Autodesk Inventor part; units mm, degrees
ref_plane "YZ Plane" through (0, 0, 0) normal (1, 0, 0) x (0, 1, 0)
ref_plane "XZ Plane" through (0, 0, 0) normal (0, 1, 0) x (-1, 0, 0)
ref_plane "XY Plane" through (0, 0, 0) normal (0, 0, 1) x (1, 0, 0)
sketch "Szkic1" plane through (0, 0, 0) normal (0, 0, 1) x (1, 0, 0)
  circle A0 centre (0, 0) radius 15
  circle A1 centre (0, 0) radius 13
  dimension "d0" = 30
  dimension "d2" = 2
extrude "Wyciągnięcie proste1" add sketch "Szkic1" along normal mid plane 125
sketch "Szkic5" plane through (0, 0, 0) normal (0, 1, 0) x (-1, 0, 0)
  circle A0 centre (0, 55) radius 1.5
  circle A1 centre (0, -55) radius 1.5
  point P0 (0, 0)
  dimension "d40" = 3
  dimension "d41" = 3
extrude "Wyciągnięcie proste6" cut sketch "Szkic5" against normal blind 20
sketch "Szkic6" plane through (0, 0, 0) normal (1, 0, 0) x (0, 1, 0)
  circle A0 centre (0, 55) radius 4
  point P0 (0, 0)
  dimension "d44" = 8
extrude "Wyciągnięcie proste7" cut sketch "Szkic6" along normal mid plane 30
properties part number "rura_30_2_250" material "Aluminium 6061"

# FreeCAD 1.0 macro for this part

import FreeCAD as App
import Part
import Sketcher

doc = App.newDocument("Part")
body = doc.addObject("PartDesign::Body", "Body")

# Sketch on XY plane
sketch1 = doc.addObject("Sketcher::SketchObject", "Sketch")
body.addObject(sketch1)
sketch1.AttachmentSupport = (doc.XY_Plane, [""])
sketch1.MapMode = "FlatFace"
sketch1.addGeometry([
    Part.Circle(App.Vector(0, 0, 0), App.Vector(0, 0, 1), 15),
    Part.Circle(App.Vector(0, 0, 0), App.Vector(0, 0, 1), 13),
], False)
sketch1.addConstraint([
    Sketcher.Constraint("Coincident", 0, 3, -1, 1),
    Sketcher.Constraint("Coincident", 1, 3, -1, 1),
    Sketcher.Constraint("Diameter", 0, 30.0),
    Sketcher.Constraint("Diameter", 1, 26.0),
])
pad1 = doc.addObject("PartDesign::Pad", "Pad")
body.addObject(pad1)
pad1.Profile = sketch1
pad1.Length = 125
pad1.Midplane = True

# Sketch on XZ plane
sketch2 = doc.addObject("Sketcher::SketchObject", "Sketch001")
body.addObject(sketch2)
sketch2.AttachmentSupport = (doc.XZ_Plane, [""])
sketch2.MapMode = "FlatFace"
sketch2.addGeometry([
    Part.Circle(App.Vector(0, 55, 0), App.Vector(0, 0, 1), 1.5),
    Part.Circle(App.Vector(0, -55, 0), App.Vector(0, 0, 1), 1.5),
], False)
sketch2.addConstraint([
    Sketcher.Constraint("Equal", 0, 1),
    Sketcher.Constraint("Symmetric", 0, 3, 1, 3, -1, 1),
    Sketcher.Constraint("PointOnObject", 0, 3, -2),
    Sketcher.Constraint("Diameter", 0, 3.0),
    Sketcher.Constraint("DistanceY", -1, 1, 0, 3, 55.0),
])
pocket1 = doc.addObject("PartDesign::Pocket", "Pocket")
body.addObject(pocket1)
pocket1.Profile = sketch2
pocket1.Length = 20
pocket1.Reversed = True

# Sketch on YZ plane
sketch3 = doc.addObject("Sketcher::SketchObject", "Sketch002")
body.addObject(sketch3)
sketch3.AttachmentSupport = (doc.YZ_Plane, [""])
sketch3.MapMode = "FlatFace"
sketch3.addGeometry(Part.Circle(App.Vector(0, 55, 0), App.Vector(0, 0, 1), 4), False)
sketch3.addConstraint([
    Sketcher.Constraint("PointOnObject", 0, 3, -2),
    Sketcher.Constraint("Diameter", 0, 8.0),
    Sketcher.Constraint("DistanceY", -1, 1, 0, 3, 55.0),
])
pocket2 = doc.addObject("PartDesign::Pocket", "Pocket001")
body.addObject(pocket2)
pocket2.Profile = sketch3
pocket2.Length = 30
pocket2.Midplane = True

doc.recompute()
